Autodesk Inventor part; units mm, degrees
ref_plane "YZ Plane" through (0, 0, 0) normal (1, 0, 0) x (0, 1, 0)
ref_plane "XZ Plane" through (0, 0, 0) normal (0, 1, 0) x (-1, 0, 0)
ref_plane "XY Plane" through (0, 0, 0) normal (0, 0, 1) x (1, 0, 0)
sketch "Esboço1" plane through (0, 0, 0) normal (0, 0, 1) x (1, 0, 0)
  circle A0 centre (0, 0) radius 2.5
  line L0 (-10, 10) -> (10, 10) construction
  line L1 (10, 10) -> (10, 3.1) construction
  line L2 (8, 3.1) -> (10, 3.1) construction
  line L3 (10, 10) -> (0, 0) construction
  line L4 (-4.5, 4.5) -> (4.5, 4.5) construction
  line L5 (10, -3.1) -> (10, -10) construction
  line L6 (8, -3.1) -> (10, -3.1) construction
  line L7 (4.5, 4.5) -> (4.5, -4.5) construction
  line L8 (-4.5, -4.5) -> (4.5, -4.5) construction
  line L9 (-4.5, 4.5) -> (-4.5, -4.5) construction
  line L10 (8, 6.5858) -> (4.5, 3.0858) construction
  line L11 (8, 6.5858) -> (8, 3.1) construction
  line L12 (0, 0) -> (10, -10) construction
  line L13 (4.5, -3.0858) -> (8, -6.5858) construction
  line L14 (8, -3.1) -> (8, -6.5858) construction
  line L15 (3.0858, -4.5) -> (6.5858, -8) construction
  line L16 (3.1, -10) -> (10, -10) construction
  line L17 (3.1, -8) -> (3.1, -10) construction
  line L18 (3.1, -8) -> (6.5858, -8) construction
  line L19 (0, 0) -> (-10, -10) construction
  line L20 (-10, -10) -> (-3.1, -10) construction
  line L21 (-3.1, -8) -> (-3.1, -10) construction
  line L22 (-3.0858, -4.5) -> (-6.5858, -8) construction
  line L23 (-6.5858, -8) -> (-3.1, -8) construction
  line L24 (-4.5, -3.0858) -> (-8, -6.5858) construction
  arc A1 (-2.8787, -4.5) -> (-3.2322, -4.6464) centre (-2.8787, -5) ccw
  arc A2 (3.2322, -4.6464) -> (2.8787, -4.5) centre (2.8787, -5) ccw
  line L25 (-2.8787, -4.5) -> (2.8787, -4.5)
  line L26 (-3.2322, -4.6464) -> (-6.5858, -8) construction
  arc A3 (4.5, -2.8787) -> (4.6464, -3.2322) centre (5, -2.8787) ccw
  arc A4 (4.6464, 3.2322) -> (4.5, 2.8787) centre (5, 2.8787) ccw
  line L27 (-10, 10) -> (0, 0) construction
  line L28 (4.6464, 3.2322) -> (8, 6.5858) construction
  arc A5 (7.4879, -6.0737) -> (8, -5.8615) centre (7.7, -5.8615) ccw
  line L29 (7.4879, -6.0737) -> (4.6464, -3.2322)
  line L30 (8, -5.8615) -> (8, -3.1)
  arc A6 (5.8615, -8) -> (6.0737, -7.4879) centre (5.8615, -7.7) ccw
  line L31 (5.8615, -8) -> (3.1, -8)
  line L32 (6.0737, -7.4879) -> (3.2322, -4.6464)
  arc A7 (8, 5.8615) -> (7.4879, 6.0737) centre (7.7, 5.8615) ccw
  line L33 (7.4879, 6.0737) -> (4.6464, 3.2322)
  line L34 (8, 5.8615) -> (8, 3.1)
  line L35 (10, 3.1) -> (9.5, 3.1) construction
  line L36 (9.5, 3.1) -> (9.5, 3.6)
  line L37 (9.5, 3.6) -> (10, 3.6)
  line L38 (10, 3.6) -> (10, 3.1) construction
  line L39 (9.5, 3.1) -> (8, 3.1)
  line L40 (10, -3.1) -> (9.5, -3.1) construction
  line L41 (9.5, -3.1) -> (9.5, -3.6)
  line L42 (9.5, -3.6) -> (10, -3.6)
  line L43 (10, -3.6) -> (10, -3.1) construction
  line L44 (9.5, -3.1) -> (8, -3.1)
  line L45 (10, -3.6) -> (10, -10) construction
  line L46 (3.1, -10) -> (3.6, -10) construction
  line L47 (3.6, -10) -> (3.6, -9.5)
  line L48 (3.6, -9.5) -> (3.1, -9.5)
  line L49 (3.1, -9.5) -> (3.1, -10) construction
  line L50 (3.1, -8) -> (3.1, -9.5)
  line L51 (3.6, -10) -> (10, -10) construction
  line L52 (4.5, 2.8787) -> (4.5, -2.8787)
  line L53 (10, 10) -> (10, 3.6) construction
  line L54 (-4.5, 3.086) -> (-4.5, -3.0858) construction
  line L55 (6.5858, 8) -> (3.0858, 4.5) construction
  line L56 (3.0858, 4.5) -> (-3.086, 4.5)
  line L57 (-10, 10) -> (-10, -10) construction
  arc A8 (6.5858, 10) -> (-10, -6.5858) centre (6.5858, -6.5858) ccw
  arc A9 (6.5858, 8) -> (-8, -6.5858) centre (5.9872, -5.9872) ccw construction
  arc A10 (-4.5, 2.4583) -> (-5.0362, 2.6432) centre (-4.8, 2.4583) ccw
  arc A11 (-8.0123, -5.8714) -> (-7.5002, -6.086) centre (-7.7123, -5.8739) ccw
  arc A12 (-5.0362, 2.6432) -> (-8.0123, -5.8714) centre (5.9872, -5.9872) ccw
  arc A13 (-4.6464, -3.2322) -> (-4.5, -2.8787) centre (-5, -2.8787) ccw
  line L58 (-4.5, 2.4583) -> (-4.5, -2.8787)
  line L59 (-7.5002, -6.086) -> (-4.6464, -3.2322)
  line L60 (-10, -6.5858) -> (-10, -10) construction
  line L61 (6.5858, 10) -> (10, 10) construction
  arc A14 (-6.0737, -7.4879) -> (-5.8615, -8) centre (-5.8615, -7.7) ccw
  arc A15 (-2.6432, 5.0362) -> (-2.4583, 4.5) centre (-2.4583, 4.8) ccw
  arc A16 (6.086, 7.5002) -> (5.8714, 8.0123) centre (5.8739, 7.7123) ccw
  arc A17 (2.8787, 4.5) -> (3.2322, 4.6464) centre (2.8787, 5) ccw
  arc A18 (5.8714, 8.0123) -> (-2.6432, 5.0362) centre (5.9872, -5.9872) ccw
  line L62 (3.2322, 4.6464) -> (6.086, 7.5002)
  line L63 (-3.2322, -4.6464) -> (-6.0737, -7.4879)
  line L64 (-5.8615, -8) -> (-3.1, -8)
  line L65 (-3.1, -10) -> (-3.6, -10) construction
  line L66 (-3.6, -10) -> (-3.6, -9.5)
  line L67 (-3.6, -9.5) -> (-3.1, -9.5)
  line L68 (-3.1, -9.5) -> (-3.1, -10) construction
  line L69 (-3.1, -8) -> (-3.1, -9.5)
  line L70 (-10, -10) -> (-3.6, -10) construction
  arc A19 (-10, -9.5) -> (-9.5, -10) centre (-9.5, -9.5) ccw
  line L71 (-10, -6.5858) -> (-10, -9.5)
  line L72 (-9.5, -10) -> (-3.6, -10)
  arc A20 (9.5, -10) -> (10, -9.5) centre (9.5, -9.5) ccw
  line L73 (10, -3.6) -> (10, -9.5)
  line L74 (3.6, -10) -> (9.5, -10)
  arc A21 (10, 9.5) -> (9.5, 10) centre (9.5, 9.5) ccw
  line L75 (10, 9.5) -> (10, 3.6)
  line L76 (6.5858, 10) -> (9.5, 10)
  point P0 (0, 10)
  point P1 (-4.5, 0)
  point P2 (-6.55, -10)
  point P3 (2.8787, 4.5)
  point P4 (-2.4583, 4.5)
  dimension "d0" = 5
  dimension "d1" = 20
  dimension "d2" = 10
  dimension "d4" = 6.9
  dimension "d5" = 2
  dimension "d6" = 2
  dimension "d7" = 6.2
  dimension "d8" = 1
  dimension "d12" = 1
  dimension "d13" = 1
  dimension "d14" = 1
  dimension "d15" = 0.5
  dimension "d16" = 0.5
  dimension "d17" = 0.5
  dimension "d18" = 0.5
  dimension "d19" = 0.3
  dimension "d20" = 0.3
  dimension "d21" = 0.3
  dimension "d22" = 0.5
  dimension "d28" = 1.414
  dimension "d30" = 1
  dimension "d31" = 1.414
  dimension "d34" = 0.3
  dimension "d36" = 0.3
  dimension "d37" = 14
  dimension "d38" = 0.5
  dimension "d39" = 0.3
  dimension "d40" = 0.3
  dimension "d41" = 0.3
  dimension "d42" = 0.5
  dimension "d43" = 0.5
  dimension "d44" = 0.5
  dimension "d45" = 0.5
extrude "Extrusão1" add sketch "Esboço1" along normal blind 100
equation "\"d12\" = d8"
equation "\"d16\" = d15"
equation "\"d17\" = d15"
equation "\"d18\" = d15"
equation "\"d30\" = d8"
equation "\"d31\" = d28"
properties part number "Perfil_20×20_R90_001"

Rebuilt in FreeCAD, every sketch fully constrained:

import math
import FreeCAD as App
import Part
import Sketcher
from FreeCAD import Vector

doc = App.newDocument("Part")
params = doc.addObject("Spreadsheet::Sheet", "Params")
for row, (alias, value) in enumerate([
    ("sketch1_diameter", "5 mm"),
    ("sketch1_radius", "14 mm"),
    ("sketch1_radius2", "0.5 mm"),
    ("sketch1_radius3", "0.3 mm"),
    ("sketch1_width", "5.9 mm"),
    ("pad1_length", "100 mm"),
], start=1):
    params.set(f"A{row}", alias)
    params.set(f"B{row}", "=" + value)
    params.setAlias(f"B{row}", alias)

body = doc.addObject("PartDesign::Body", "Body")

# Sketch on XY plane
sketch1 = body.newObject("Sketcher::SketchObject", "Sketch")
sketch1.AttachmentSupport = (doc.getObject("XY_Plane"), [""])
sketch1.MapMode = "FlatFace"
sketch1.addGeometry([
    Part.ArcOfCircle(Part.Circle(Vector(-2.88, -5, 0), Vector(0, 0, 1), 0.5), math.radians(90), math.radians(135)),  # 0
    Part.LineSegment(Vector(-2.88, -4.5, 0), Vector(2.88, -4.5, 0)),  # 1
    Part.ArcOfCircle(Part.Circle(Vector(2.88, -5, 0), Vector(0, 0, 1), 0.5), math.radians(45), math.radians(90)),  # 2
    Part.LineSegment(Vector(3.23, -4.65, 0), Vector(6.07, -7.49, 0)),  # 3
    Part.ArcOfCircle(Part.Circle(Vector(5.86, -7.7, 0), Vector(0, 0, 1), 0.3), math.radians(-90), math.radians(45)),  # 4
    Part.LineSegment(Vector(5.86, -8, 0), Vector(3.1, -8, 0)),  # 5
    Part.LineSegment(Vector(3.1, -8, 0), Vector(3.1, -9.5, 0)),  # 6
    Part.LineSegment(Vector(3.1, -9.5, 0), Vector(3.6, -9.5, 0)),  # 7
    Part.LineSegment(Vector(3.6, -9.5, 0), Vector(3.6, -10, 0)),  # 8
    Part.LineSegment(Vector(3.6, -10, 0), Vector(9.5, -10, 0)),  # 9
    Part.ArcOfCircle(Part.Circle(Vector(9.5, -9.5, 0), Vector(0, 0, 1), 0.5), math.radians(-90), math.radians(0)),  # 10
    Part.LineSegment(Vector(10, -9.5, 0), Vector(10, -3.6, 0)),  # 11
    Part.LineSegment(Vector(10, -3.6, 0), Vector(9.5, -3.6, 0)),  # 12
    Part.LineSegment(Vector(9.5, -3.6, 0), Vector(9.5, -3.1, 0)),  # 13
    Part.LineSegment(Vector(9.5, -3.1, 0), Vector(8, -3.1, 0)),  # 14
    Part.LineSegment(Vector(8, -3.1, 0), Vector(8, -5.86, 0)),  # 15
    Part.ArcOfCircle(Part.Circle(Vector(7.7, -5.86, 0), Vector(0, 0, 1), 0.3), math.radians(-135), math.radians(0)),  # 16
    Part.LineSegment(Vector(7.49, -6.07, 0), Vector(4.65, -3.23, 0)),  # 17
    Part.ArcOfCircle(Part.Circle(Vector(5, -2.88, 0), Vector(0, 0, 1), 0.5), math.radians(180), math.radians(225)),  # 18
    Part.LineSegment(Vector(4.5, -2.88, 0), Vector(4.5, 2.88, 0)),  # 19
    Part.ArcOfCircle(Part.Circle(Vector(5, 2.88, 0), Vector(0, 0, 1), 0.5), math.radians(135), math.radians(180)),  # 20
    Part.LineSegment(Vector(4.65, 3.23, 0), Vector(7.49, 6.07, 0)),  # 21
    Part.ArcOfCircle(Part.Circle(Vector(7.7, 5.86, 0), Vector(0, 0, 1), 0.3), math.radians(0), math.radians(135)),  # 22
    Part.LineSegment(Vector(8, 5.86, 0), Vector(8, 3.1, 0)),  # 23
    Part.LineSegment(Vector(8, 3.1, 0), Vector(9.5, 3.1, 0)),  # 24
    Part.LineSegment(Vector(9.5, 3.1, 0), Vector(9.5, 3.6, 0)),  # 25
    Part.LineSegment(Vector(9.5, 3.6, 0), Vector(10, 3.6, 0)),  # 26
    Part.LineSegment(Vector(10, 3.6, 0), Vector(10, 9.5, 0)),  # 27
    Part.ArcOfCircle(Part.Circle(Vector(9.5, 9.5, 0), Vector(0, 0, 1), 0.5), math.radians(0), math.radians(90)),  # 28
    Part.LineSegment(Vector(9.5, 10, 0), Vector(6.59, 10, 0)),  # 29
    Part.ArcOfCircle(Part.Circle(Vector(6.59, -6.59, 0), Vector(0, 0, 1), 16.59), math.radians(90), math.radians(180)),  # 30
    Part.LineSegment(Vector(-10, -6.59, 0), Vector(-10, -9.5, 0)),  # 31
    Part.ArcOfCircle(Part.Circle(Vector(-9.5, -9.5, 0), Vector(0, 0, 1), 0.5), math.radians(180), math.radians(270)),  # 32
    Part.LineSegment(Vector(-9.5, -10, 0), Vector(-3.6, -10, 0)),  # 33
    Part.LineSegment(Vector(-3.6, -10, 0), Vector(-3.6, -9.5, 0)),  # 34
    Part.LineSegment(Vector(-3.6, -9.5, 0), Vector(-3.1, -9.5, 0)),  # 35
    Part.LineSegment(Vector(-3.1, -9.5, 0), Vector(-3.1, -8, 0)),  # 36
    Part.LineSegment(Vector(-3.1, -8, 0), Vector(-5.86, -8, 0)),  # 37
    Part.ArcOfCircle(Part.Circle(Vector(-5.86, -7.7, 0), Vector(0, 0, 1), 0.3), math.radians(135), math.radians(270)),  # 38
    Part.LineSegment(Vector(-6.07, -7.49, 0), Vector(-3.23, -4.65, 0)),  # 39
    Part.ArcOfCircle(Part.Circle(Vector(-4.8, 2.46, 0), Vector(0, 0, 1), 0.3), math.radians(0), math.radians(142)),  # 40
    Part.LineSegment(Vector(-4.5, 2.46, 0), Vector(-4.5, -2.88, 0)),  # 41
    Part.ArcOfCircle(Part.Circle(Vector(-5, -2.88, 0), Vector(0, 0, 1), 0.5), math.radians(-45), math.radians(0)),  # 42
    Part.LineSegment(Vector(-4.65, -3.23, 0), Vector(-7.5, -6.09, 0)),  # 43
    Part.ArcOfCircle(Part.Circle(Vector(-7.71, -5.87, 0), Vector(0, 0, 1), 0.3), math.radians(180), math.radians(315)),  # 44
    Part.ArcOfCircle(Part.Circle(Vector(5.99, -5.99, 0), Vector(0, 0, 1), 14), math.radians(142), math.radians(180)),  # 45
    Part.Circle(Vector(0, 0, 0), Vector(0, 0, 1), 2.5),  # 46
    Part.ArcOfCircle(Part.Circle(Vector(2.88, 5, 0), Vector(0, 0, 1), 0.5), math.radians(-90), math.radians(-45)),  # 47
    Part.LineSegment(Vector(2.88, 4.5, 0), Vector(-2.46, 4.5, 0)),  # 48
    Part.ArcOfCircle(Part.Circle(Vector(-2.46, 4.8, 0), Vector(0, 0, 1), 0.3), math.radians(128), math.radians(270)),  # 49
    Part.ArcOfCircle(Part.Circle(Vector(5.99, -5.99, 0), Vector(0, 0, 1), 14), math.radians(90), math.radians(128)),  # 50
    Part.ArcOfCircle(Part.Circle(Vector(5.87, 7.71, 0), Vector(0, 0, 1), 0.3), math.radians(-45), math.radians(90)),  # 51
    Part.LineSegment(Vector(6.09, 7.5, 0), Vector(3.23, 4.65, 0)),  # 52
], False)
sketch1.addConstraint([
    Sketcher.Constraint("Tangent", 0, 1, 1, 1),
    Sketcher.Constraint("Tangent", 1, 2, 2, 2),
    Sketcher.Constraint("Tangent", 2, 1, 3, 1),
    Sketcher.Constraint("Tangent", 3, 2, 4, 2),
    Sketcher.Constraint("Tangent", 4, 1, 5, 1),
    Sketcher.Constraint("Coincident", 5, 2, 6, 1),
    Sketcher.Constraint("Coincident", 6, 2, 7, 1),
    Sketcher.Constraint("Coincident", 7, 2, 8, 1),
    Sketcher.Constraint("Coincident", 8, 2, 9, 1),
    Sketcher.Constraint("Tangent", 9, 2, 10, 1),
    Sketcher.Constraint("Tangent", 10, 2, 11, 1),
    Sketcher.Constraint("Coincident", 11, 2, 12, 1),
    Sketcher.Constraint("Coincident", 12, 2, 13, 1),
    Sketcher.Constraint("Coincident", 13, 2, 14, 1),
    Sketcher.Constraint("Coincident", 14, 2, 15, 1),
    Sketcher.Constraint("Tangent", 15, 2, 16, 2),
    Sketcher.Constraint("Tangent", 16, 1, 17, 1),
    Sketcher.Constraint("Tangent", 17, 2, 18, 2),
    Sketcher.Constraint("Tangent", 18, 1, 19, 1),
    Sketcher.Constraint("Tangent", 19, 2, 20, 2),
    Sketcher.Constraint("Tangent", 20, 1, 21, 1),
    Sketcher.Constraint("Tangent", 21, 2, 22, 2),
    Sketcher.Constraint("Tangent", 22, 1, 23, 1),
    Sketcher.Constraint("Coincident", 23, 2, 24, 1),
    Sketcher.Constraint("Coincident", 24, 2, 25, 1),
    Sketcher.Constraint("Coincident", 25, 2, 26, 1),
    Sketcher.Constraint("Coincident", 26, 2, 27, 1),
    Sketcher.Constraint("Tangent", 27, 2, 28, 1),
    Sketcher.Constraint("Tangent", 28, 2, 29, 1),
    Sketcher.Constraint("Tangent", 29, 2, 30, 1),
    Sketcher.Constraint("Tangent", 30, 2, 31, 1),
    Sketcher.Constraint("Tangent", 31, 2, 32, 1),
    Sketcher.Constraint("Tangent", 32, 2, 33, 1),
    Sketcher.Constraint("Coincident", 33, 2, 34, 1),
    Sketcher.Constraint("Coincident", 34, 2, 35, 1),
    Sketcher.Constraint("Coincident", 35, 2, 36, 1),
    Sketcher.Constraint("Coincident", 36, 2, 37, 1),
    Sketcher.Constraint("Tangent", 37, 2, 38, 2),
    Sketcher.Constraint("Tangent", 38, 1, 39, 1),
    Sketcher.Constraint("Tangent", 39, 2, 0, 2),
    Sketcher.Constraint("Tangent", 40, 1, 41, 1),
    Sketcher.Constraint("Tangent", 41, 2, 42, 2),
    Sketcher.Constraint("Tangent", 42, 1, 43, 1),
    Sketcher.Constraint("Tangent", 43, 2, 44, 2),
    Sketcher.Constraint("Tangent", 44, 1, 45, 2),
    Sketcher.Constraint("Tangent", 45, 1, 40, 2),
    Sketcher.Constraint("Tangent", 47, 1, 48, 1),
    Sketcher.Constraint("Tangent", 48, 2, 49, 2),
    Sketcher.Constraint("Tangent", 49, 1, 50, 2),
    Sketcher.Constraint("Tangent", 50, 1, 51, 2),
    Sketcher.Constraint("Tangent", 51, 1, 52, 1),
    Sketcher.Constraint("Tangent", 52, 2, 47, 2),
    Sketcher.Constraint("Horizontal", 1),
    Sketcher.Constraint("Horizontal", 5),
    Sketcher.Constraint("Vertical", 6),
    Sketcher.Constraint("Horizontal", 7),
    Sketcher.Constraint("Vertical", 8),
    Sketcher.Constraint("Horizontal", 9),
    Sketcher.Constraint("Vertical", 11),
    Sketcher.Constraint("Horizontal", 12),
    Sketcher.Constraint("Vertical", 13),
    Sketcher.Constraint("Horizontal", 14),
    Sketcher.Constraint("Vertical", 15),
    Sketcher.Constraint("Vertical", 19),
    Sketcher.Constraint("Vertical", 23),
    Sketcher.Constraint("Horizontal", 24),
    Sketcher.Constraint("Vertical", 25),
    Sketcher.Constraint("Horizontal", 26),
    Sketcher.Constraint("Vertical", 27),
    Sketcher.Constraint("Horizontal", 29),
    Sketcher.Constraint("Vertical", 31),
    Sketcher.Constraint("Horizontal", 33),
    Sketcher.Constraint("Vertical", 34),
    Sketcher.Constraint("Horizontal", 35),
    Sketcher.Constraint("Vertical", 36),
    Sketcher.Constraint("Horizontal", 37),
    Sketcher.Constraint("Vertical", 41),
    Sketcher.Constraint("Horizontal", 48),
    Sketcher.Constraint("Coincident", 46, 3, -1, 1),
    Sketcher.Constraint("Coincident", 50, 3, 45, 3),
    Sketcher.Constraint("Equal", 0, 2),
    Sketcher.Constraint("Equal", 2, 10),
    Sketcher.Constraint("Equal", 4, 16),
    Sketcher.Constraint("Equal", 10, 18),
    Sketcher.Constraint("Equal", 18, 20),
    Sketcher.Constraint("Equal", 16, 22),
    Sketcher.Constraint("Equal", 20, 28),
    Sketcher.Constraint("Equal", 28, 32),
    Sketcher.Constraint("Equal", 22, 38),
    Sketcher.Constraint("Equal", 38, 40),
    Sketcher.Constraint("Equal", 32, 42),
    Sketcher.Constraint("Equal", 40, 44),
    Sketcher.Constraint("Equal", 42, 47),
    Sketcher.Constraint("Equal", 44, 49),
    Sketcher.Constraint("Equal", 45, 50),
    Sketcher.Constraint("Equal", 49, 51),
    Sketcher.Constraint("Symmetric", 28, 3, 32, 3, -1, 1),
    Sketcher.Constraint("Symmetric", 20, 3, 42, 3, -1, 1),
    Sketcher.Constraint("Symmetric", 0, 3, 47, 3, -1, 1),
    Sketcher.Constraint("Symmetric", 10, 3, 32, 3, -2),
    Sketcher.Constraint("Symmetric", 4, 3, 38, 3, -2),
    Sketcher.Constraint("Symmetric", 7, 2, 34, 2, -2),
    Sketcher.Constraint("Symmetric", 17, 2, 42, 1, -2),
    Sketcher.Constraint("Symmetric", 16, 3, 22, 3, -1),
    Sketcher.Constraint("Symmetric", 13, 2, 24, 2, -1),
    Sketcher.Constraint("Symmetric", 2, 1, 52, 2, -1),
    Sketcher.Constraint("Parallel", 3, 17),
    Sketcher.Constraint("Perpendicular", 17, 21),
    Sketcher.Constraint("Horizontal", 32, 3, 6, 2),
    Sketcher.Constraint("Vertical", 9, 2, 12, 2),
    Sketcher.Constraint("Equal", 7, 12),
    Sketcher.Constraint("Equal", 26, 35),
    Sketcher.Constraint("Equal", 24, 6),
    Sketcher.Constraint("Equal", 33, 11),
    Sketcher.Constraint("Equal", 8, 13),
    Sketcher.Constraint("Equal", 37, 15),
    Sketcher.Constraint("Equal", 1, 19),
    Sketcher.Constraint("Equal", 13, 25),
    Sketcher.Constraint("Equal", 29, 31),
    Sketcher.Constraint("Equal", 48, 41),
    Sketcher.Constraint("Diameter", 46, 5.0),
    Sketcher.Constraint("Radius", 45, 14.0),
    Sketcher.Constraint("Radius", 0, 0.5),
    Sketcher.Constraint("Radius", 4, 0.3),
    Sketcher.Constraint("DistanceY", 0, 3, -1, 1, 5.0),
    Sketcher.Constraint("DistanceY", 8, 2, -1, 1, 10.0),
    Sketcher.Constraint("DistanceX", 9, 1, 9, 2, 5.9),
    Sketcher.Constraint("DistanceX", 14, 2, 14, 1, 1.5),
    Sketcher.Constraint("Radius", 30, 16.5858),
    Sketcher.Constraint("DistanceX", 48, 2, 48, 1, 5.337),
    Sketcher.Constraint("Distance", 43, 4.036),
])
sketch1.setExpression("Constraints[120]", "Params.sketch1_diameter")
sketch1.setExpression("Constraints[121]", "Params.sketch1_radius")
sketch1.setExpression("Constraints[122]", "Params.sketch1_radius2")
sketch1.setExpression("Constraints[123]", "Params.sketch1_radius3")
sketch1.setExpression("Constraints[126]", "Params.sketch1_width")
pad1 = body.newObject("PartDesign::Pad", "Pad")
pad1.Profile = sketch1
pad1.setExpression("Length", "Params.pad1_length")

doc.recompute()
